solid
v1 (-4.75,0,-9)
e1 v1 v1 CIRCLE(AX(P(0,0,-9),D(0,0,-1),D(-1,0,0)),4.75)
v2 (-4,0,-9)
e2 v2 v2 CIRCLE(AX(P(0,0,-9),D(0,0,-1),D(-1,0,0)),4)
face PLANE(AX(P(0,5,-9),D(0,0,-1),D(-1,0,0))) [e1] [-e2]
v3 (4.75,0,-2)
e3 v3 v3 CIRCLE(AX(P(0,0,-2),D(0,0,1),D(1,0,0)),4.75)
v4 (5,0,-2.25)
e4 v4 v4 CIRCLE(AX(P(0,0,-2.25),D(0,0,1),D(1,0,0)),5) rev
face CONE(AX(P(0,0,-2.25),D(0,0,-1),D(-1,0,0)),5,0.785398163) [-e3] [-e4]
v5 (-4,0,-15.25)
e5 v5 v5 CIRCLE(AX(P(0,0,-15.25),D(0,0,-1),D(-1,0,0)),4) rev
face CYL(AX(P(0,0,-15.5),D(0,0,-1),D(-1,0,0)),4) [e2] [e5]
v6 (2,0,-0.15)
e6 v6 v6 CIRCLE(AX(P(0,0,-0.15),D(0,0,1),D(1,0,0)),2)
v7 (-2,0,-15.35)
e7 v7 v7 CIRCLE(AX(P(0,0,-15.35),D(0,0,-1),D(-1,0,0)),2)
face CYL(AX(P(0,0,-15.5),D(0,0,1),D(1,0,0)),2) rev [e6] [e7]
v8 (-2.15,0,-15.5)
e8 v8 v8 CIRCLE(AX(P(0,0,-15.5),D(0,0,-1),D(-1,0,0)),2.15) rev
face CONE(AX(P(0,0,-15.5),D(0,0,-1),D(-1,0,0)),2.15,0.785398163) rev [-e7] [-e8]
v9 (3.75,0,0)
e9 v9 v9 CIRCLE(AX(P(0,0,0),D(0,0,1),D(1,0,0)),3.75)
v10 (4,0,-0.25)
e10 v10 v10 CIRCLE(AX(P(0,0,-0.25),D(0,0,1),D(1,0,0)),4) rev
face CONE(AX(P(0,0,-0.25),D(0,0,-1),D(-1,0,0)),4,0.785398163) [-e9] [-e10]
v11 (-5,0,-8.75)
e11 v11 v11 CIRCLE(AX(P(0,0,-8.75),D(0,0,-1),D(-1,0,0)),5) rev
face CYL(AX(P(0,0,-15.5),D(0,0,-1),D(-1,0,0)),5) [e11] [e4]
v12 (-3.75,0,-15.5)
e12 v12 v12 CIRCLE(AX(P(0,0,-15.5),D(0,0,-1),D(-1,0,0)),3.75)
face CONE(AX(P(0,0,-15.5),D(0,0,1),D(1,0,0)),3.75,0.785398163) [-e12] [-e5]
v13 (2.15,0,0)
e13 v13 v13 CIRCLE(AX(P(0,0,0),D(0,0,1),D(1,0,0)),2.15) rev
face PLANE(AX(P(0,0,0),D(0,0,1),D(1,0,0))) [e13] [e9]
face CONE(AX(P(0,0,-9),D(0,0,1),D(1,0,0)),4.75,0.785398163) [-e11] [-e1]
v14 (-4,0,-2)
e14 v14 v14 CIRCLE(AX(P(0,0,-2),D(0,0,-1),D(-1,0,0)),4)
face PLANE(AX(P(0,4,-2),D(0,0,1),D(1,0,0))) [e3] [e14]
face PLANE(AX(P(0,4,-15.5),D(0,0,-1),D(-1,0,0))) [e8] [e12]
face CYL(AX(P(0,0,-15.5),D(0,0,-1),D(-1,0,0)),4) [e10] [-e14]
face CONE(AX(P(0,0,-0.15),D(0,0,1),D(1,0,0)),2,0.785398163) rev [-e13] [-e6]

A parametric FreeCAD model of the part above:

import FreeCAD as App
import Part
import Sketcher

V = App.Vector


def edges_at(feature, points):
    """Names of the edges that pass closest to the given points."""
    edges = feature.Shape.Edges
    near = lambda p: min(range(len(edges)), key=lambda i: edges[i].distToShape(Part.Vertex(*p))[0])
    return sorted({f"Edge{near(p) + 1}" for p in points})

doc = App.newDocument("Part")
body = doc.addObject("PartDesign::Body", "Body")

# Sketch on YZ plane
sketch1 = doc.addObject("Sketcher::SketchObject", "Sketch")
body.addObject(sketch1)
sketch1.AttachmentSupport = (doc.YZ_Plane, [""])
sketch1.MapMode = "FlatFace"
sketch1.addGeometry([
    Part.LineSegment(V(4, 0, 0), V(0, 0, 0)),  # 0
    Part.LineSegment(V(0, 0, 0), V(0, -15.5, 0)),  # 1
    Part.LineSegment(V(0, -15.5, 0), V(4, -15.5, 0)),  # 2
    Part.LineSegment(V(4, -15.5, 0), V(4, -9, 0)),  # 3
    Part.LineSegment(V(4, -9, 0), V(5, -9, 0)),  # 4
    Part.LineSegment(V(5, -9, 0), V(5, -2, 0)),  # 5
    Part.LineSegment(V(5, -2, 0), V(4, -2, 0)),  # 6
    Part.LineSegment(V(4, -2, 0), V(4, 0, 0)),  # 7
], False)
sketch1.addConstraint([
    Sketcher.Constraint("Coincident", 0, 2, 1, 1),
    Sketcher.Constraint("Coincident", 1, 2, 2, 1),
    Sketcher.Constraint("Coincident", 2, 2, 3, 1),
    Sketcher.Constraint("Coincident", 3, 2, 4, 1),
    Sketcher.Constraint("Coincident", 4, 2, 5, 1),
    Sketcher.Constraint("Coincident", 5, 2, 6, 1),
    Sketcher.Constraint("Coincident", 6, 2, 7, 1),
    Sketcher.Constraint("Coincident", 7, 2, 0, 1),
    Sketcher.Constraint("Horizontal", 0),
    Sketcher.Constraint("Vertical", 1),
    Sketcher.Constraint("Horizontal", 2),
    Sketcher.Constraint("Vertical", 3),
    Sketcher.Constraint("Horizontal", 4),
    Sketcher.Constraint("Vertical", 5),
    Sketcher.Constraint("Horizontal", 6),
    Sketcher.Constraint("Vertical", 7),
    Sketcher.Constraint("Coincident", 0, 2, -1, 1),
    Sketcher.Constraint("Vertical", 3, 2, 6, 2),
    Sketcher.Constraint("DistanceX", 0, 2, 0, 1, 4.0),
    Sketcher.Constraint("DistanceX", 4, 1, 4, 2, 1.0),
    Sketcher.Constraint("DistanceY", 5, 1, 5, 2, 7.0),
    Sketcher.Constraint("DistanceY", 7, 1, 7, 2, 2.0),
    Sketcher.Constraint("DistanceY", 1, 2, 1, 1, 15.5),
])
revolution = doc.addObject("PartDesign::Revolution", "Revolution")
body.addObject(revolution)
revolution.Profile = sketch1
revolution.ReferenceAxis = (sketch1, ["V_Axis"])
revolution.Angle = 360
doc.recompute()

chamfer = doc.addObject("PartDesign::Chamfer", "Chamfer")
body.addObject(chamfer)
chamfer.Base = (revolution, edges_at(revolution, [
    (4, 0, -15.5),
    (5, 0, -9),
    (5, 0, -2),
    (4, 0, 0),
]))
chamfer.Size = 0.25

# Sketch on XY plane
sketch2 = doc.addObject("Sketcher::SketchObject", "Sketch001")
body.addObject(sketch2)
sketch2.AttachmentSupport = (doc.XY_Plane, [""])
sketch2.MapMode = "FlatFace"
sketch2.addGeometry(Part.Circle(V(0, 0, 0), V(0, 0, 1), 2), False)
sketch2.addConstraint([
    Sketcher.Constraint("Coincident", 0, 3, -1, 1),
    Sketcher.Constraint("Diameter", 0, 4.0),
])
pocket1 = doc.addObject("PartDesign::Pocket", "Pocket")
body.addObject(pocket1)
pocket1.Profile = sketch2
pocket1.Type = "ThroughAll"
doc.recompute()

chamfer2 = doc.addObject("PartDesign::Chamfer", "Chamfer001")
body.addObject(chamfer2)
chamfer2.Base = (pocket1, edges_at(pocket1, [(-2, 0, -15.5), (-2, 0, 0)]))
chamfer2.Size = 0.15

doc.recompute()
